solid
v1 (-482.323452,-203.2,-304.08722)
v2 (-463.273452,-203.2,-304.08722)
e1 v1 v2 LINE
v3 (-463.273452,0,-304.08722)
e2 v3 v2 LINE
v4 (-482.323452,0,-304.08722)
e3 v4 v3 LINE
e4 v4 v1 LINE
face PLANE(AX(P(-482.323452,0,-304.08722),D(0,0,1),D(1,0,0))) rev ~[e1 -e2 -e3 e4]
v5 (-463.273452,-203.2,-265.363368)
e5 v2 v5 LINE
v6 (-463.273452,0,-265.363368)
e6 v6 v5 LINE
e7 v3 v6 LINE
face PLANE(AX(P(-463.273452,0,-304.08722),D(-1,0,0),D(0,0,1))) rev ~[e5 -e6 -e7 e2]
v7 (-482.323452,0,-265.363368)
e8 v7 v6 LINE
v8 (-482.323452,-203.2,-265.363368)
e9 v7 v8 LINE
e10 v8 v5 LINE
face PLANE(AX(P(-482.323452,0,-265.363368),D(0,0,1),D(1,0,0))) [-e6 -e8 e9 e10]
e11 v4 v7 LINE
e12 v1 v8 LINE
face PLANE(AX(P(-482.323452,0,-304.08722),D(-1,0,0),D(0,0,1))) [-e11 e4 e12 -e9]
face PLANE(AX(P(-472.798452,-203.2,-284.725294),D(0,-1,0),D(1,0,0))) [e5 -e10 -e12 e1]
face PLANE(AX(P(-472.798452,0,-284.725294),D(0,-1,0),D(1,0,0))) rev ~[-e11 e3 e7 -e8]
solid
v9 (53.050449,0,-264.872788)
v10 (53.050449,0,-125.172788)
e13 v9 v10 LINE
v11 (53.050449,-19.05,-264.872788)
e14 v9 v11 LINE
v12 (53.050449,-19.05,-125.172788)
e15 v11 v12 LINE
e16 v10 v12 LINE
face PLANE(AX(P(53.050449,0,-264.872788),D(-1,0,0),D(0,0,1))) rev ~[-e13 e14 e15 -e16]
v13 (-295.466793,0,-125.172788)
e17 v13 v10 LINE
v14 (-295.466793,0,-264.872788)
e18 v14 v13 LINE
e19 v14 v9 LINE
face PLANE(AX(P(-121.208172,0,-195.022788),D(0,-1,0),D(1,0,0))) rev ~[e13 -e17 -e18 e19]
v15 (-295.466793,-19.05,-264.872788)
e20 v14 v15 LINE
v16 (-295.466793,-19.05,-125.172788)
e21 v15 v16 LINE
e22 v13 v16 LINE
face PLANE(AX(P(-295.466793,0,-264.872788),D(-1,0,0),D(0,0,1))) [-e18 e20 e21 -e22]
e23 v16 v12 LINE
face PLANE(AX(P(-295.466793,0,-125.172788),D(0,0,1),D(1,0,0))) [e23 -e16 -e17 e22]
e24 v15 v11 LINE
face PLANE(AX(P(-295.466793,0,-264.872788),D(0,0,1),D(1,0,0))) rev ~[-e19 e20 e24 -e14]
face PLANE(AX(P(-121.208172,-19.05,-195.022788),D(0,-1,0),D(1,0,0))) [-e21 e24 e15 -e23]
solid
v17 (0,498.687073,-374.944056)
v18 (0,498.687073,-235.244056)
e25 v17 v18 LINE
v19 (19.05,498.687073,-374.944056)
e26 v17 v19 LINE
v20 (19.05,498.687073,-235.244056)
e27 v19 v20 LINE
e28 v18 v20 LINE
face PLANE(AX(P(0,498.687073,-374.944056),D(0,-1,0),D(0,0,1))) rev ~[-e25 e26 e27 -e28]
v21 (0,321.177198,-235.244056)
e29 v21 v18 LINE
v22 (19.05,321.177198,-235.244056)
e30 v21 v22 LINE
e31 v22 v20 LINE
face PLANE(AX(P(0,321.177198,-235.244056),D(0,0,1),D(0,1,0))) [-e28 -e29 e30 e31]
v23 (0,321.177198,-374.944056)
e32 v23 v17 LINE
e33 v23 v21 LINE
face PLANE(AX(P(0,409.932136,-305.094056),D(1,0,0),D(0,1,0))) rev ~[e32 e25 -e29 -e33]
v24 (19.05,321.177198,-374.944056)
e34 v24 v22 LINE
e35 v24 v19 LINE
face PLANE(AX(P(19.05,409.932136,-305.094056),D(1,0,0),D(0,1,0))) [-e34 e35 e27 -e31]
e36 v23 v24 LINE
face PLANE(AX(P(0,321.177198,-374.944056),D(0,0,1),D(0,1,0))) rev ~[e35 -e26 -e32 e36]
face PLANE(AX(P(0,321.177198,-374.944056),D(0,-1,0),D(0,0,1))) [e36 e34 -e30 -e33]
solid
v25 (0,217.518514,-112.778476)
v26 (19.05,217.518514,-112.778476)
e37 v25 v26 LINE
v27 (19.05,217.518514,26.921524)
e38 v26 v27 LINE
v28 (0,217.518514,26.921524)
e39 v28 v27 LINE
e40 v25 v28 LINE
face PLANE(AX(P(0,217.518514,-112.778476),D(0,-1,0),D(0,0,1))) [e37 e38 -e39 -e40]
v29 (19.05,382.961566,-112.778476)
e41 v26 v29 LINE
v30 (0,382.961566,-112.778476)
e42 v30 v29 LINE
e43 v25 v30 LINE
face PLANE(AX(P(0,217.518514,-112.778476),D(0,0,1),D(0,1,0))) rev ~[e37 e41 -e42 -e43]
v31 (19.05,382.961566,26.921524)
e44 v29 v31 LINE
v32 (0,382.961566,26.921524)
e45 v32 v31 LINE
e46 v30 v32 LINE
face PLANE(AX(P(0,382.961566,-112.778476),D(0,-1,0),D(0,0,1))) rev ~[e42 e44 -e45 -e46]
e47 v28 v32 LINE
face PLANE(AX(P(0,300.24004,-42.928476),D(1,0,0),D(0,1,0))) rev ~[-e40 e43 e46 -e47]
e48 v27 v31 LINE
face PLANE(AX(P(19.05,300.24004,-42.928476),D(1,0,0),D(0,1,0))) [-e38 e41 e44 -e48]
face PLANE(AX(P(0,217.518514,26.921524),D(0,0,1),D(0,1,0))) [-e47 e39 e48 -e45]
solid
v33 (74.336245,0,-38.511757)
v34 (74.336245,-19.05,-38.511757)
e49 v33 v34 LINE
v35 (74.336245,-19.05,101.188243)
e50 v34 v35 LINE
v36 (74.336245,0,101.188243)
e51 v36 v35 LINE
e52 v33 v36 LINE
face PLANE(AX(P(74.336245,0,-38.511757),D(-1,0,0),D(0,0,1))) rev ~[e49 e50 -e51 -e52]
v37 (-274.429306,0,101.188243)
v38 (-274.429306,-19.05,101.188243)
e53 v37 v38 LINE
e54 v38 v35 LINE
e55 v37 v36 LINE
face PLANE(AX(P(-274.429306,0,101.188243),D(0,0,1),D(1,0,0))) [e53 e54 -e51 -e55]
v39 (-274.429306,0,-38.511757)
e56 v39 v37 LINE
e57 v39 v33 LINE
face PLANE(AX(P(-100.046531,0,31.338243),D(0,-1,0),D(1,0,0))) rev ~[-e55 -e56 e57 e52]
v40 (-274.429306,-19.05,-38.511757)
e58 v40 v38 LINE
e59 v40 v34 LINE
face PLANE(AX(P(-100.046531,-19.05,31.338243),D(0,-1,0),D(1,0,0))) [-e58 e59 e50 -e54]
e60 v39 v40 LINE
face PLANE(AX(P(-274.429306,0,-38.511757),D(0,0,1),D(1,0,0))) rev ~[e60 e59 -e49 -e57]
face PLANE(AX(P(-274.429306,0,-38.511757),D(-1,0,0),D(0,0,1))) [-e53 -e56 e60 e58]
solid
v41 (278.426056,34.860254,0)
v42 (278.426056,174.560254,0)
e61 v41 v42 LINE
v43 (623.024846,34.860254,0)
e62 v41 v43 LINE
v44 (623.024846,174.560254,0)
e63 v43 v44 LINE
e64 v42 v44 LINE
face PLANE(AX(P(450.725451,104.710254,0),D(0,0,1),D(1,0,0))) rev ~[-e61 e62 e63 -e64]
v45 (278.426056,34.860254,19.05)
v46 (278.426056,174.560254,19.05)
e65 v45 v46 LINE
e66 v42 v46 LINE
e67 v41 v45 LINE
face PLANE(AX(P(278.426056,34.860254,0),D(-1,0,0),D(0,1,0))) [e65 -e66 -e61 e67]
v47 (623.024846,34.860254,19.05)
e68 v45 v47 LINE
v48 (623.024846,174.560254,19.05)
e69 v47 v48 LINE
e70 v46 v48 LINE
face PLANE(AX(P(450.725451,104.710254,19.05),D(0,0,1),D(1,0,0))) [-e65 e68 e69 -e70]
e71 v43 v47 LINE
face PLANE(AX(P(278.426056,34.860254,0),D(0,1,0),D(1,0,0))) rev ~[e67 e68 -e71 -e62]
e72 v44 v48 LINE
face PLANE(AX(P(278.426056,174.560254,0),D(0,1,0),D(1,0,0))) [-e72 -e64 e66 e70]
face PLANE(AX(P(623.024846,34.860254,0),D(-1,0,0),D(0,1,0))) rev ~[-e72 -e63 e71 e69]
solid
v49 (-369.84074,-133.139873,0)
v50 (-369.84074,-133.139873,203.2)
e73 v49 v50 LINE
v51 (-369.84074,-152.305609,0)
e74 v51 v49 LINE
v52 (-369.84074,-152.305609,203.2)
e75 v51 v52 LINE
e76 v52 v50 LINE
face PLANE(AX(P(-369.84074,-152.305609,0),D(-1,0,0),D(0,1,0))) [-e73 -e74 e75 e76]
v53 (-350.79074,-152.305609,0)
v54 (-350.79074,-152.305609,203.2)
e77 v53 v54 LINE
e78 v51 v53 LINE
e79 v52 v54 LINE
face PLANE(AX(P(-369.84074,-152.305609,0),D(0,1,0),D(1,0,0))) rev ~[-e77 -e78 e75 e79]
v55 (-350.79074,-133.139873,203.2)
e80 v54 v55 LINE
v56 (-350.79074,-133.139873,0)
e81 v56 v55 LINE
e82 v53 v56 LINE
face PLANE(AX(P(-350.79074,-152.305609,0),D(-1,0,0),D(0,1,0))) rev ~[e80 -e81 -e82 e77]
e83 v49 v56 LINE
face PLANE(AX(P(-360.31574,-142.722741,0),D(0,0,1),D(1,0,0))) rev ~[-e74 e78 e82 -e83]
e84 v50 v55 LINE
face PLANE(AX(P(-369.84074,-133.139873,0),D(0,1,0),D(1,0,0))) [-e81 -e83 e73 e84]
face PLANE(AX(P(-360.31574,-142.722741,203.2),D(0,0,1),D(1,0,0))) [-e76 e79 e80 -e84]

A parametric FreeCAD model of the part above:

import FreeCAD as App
import Part
import Sketcher
Q = App.Units.Quantity

doc = App.newDocument("Part")
body = doc.addObject("PartDesign::Body", "Body")

# Sketch on XZ plane
sketch1 = body.newObject("Sketcher::SketchObject", "Sketch")
sketch1.AttachmentSupport = (doc.getObject("XZ_Plane"), [""])
sketch1.MapMode = "FlatFace"
sketch1.addGeometry([
    Part.LineSegment(App.Vector(-274, 101, 0), App.Vector(-274, -39, 0)),
    Part.LineSegment(App.Vector(-274, -39, 0), App.Vector(74, -39, 0)),
    Part.LineSegment(App.Vector(74, -39, 0), App.Vector(74, 101, 0)),
    Part.LineSegment(App.Vector(74, 101, 0), App.Vector(-274, 101, 0)),
], False)
sketch1.addConstraint([
    Sketcher.Constraint("Coincident", 0, 2, 1, 1),
    Sketcher.Constraint("Coincident", 1, 2, 2, 1),
    Sketcher.Constraint("Coincident", 2, 2, 3, 1),
    Sketcher.Constraint("Coincident", 3, 2, 0, 1),
    Sketcher.Constraint("Vertical", 0),
    Sketcher.Constraint("Horizontal", 1),
    Sketcher.Constraint("Vertical", 2),
    Sketcher.Constraint("Horizontal", 3),
    Sketcher.Constraint("DistanceY", 0, 2, 0, 1, Q("5.5 in")),
    Sketcher.Constraint("DistanceX", 1, 1, 1, 2, 348.765551),
    Sketcher.Constraint("DistanceX", 0, 2, -1, 1, 274.429306),
    Sketcher.Constraint("DistanceY", 0, 2, -1, 1, 38.511757),
])
pad1 = body.newObject("PartDesign::Pad", "Pad")
pad1.Profile = sketch1
pad1.Length = Q("0.75 in")
body2 = doc.addObject("PartDesign::Body", "Body001")

# Sketch on XZ plane
sketch2 = body2.newObject("Sketcher::SketchObject", "Sketch001")
sketch2.AttachmentSupport = (doc.getObject("XZ_Plane001"), [""])
sketch2.MapMode = "FlatFace"
sketch2.addGeometry([
    Part.LineSegment(App.Vector(-295, -125, 0), App.Vector(-295, -265, 0)),
    Part.LineSegment(App.Vector(-295, -265, 0), App.Vector(53, -265, 0)),
    Part.LineSegment(App.Vector(53, -265, 0), App.Vector(53, -125, 0)),
    Part.LineSegment(App.Vector(53, -125, 0), App.Vector(-295, -125, 0)),
], False)
sketch2.addConstraint([
    Sketcher.Constraint("Coincident", 0, 2, 1, 1),
    Sketcher.Constraint("Coincident", 1, 2, 2, 1),
    Sketcher.Constraint("Coincident", 2, 2, 3, 1),
    Sketcher.Constraint("Coincident", 3, 2, 0, 1),
    Sketcher.Constraint("Vertical", 0),
    Sketcher.Constraint("Horizontal", 1),
    Sketcher.Constraint("Vertical", 2),
    Sketcher.Constraint("Horizontal", 3),
    Sketcher.Constraint("DistanceY", 0, 2, 0, 1, Q("5.5 in")),
    Sketcher.Constraint("DistanceX", 1, 1, 1, 2, 348.517242),
    Sketcher.Constraint("DistanceY", 0, 2, -1, 1, 264.872788),
    Sketcher.Constraint("DistanceX", -1, 1, 1, 2, 53.050449),
])
pad2 = body2.newObject("PartDesign::Pad", "Pad001")
pad2.Profile = sketch2
pad2.Length = Q("0.75 in")
body3 = doc.addObject("PartDesign::Body", "Body002")

# Sketch on YZ plane
sketch3 = body3.newObject("Sketcher::SketchObject", "Sketch002")
sketch3.AttachmentSupport = (doc.getObject("YZ_Plane002"), [""])
sketch3.MapMode = "FlatFace"
sketch3.addGeometry([
    Part.LineSegment(App.Vector(218, 27, 0), App.Vector(218, -113, 0)),
    Part.LineSegment(App.Vector(218, -113, 0), App.Vector(383, -113, 0)),
    Part.LineSegment(App.Vector(383, -113, 0), App.Vector(383, 27, 0)),
    Part.LineSegment(App.Vector(383, 27, 0), App.Vector(218, 27, 0)),
], False)
sketch3.addConstraint([
    Sketcher.Constraint("Coincident", 0, 2, 1, 1),
    Sketcher.Constraint("Coincident", 1, 2, 2, 1),
    Sketcher.Constraint("Coincident", 2, 2, 3, 1),
    Sketcher.Constraint("Coincident", 3, 2, 0, 1),
    Sketcher.Constraint("Vertical", 0),
    Sketcher.Constraint("Horizontal", 1),
    Sketcher.Constraint("Vertical", 2),
    Sketcher.Constraint("Horizontal", 3),
    Sketcher.Constraint("DistanceY", 0, 2, 0, 1, Q("5.5 in")),
    Sketcher.Constraint("DistanceX", 1, 1, 1, 2, 165.443052),
    Sketcher.Constraint("DistanceX", -1, 1, 0, 2, 217.518514),
    Sketcher.Constraint("DistanceY", 0, 2, -1, 1, 112.778476),
])
pad3 = body3.newObject("PartDesign::Pad", "Pad002")
pad3.Profile = sketch3
pad3.Length = Q("0.75 in")
body4 = doc.addObject("PartDesign::Body", "Body003")

# Sketch on YZ plane
sketch4 = body4.newObject("Sketcher::SketchObject", "Sketch003")
sketch4.AttachmentSupport = (doc.getObject("YZ_Plane003"), [""])
sketch4.MapMode = "FlatFace"
sketch4.addGeometry([
    Part.LineSegment(App.Vector(321, -235, 0), App.Vector(321, -375, 0)),
    Part.LineSegment(App.Vector(321, -375, 0), App.Vector(499, -375, 0)),
    Part.LineSegment(App.Vector(499, -375, 0), App.Vector(499, -235, 0)),
    Part.LineSegment(App.Vector(499, -235, 0), App.Vector(321, -235, 0)),
], False)
sketch4.addConstraint([
    Sketcher.Constraint("Coincident", 0, 2, 1, 1),
    Sketcher.Constraint("Coincident", 1, 2, 2, 1),
    Sketcher.Constraint("Coincident", 2, 2, 3, 1),
    Sketcher.Constraint("Coincident", 3, 2, 0, 1),
    Sketcher.Constraint("Vertical", 0),
    Sketcher.Constraint("Horizontal", 1),
    Sketcher.Constraint("Vertical", 2),
    Sketcher.Constraint("Horizontal", 3),
    Sketcher.Constraint("DistanceY", 0, 2, 0, 1, Q("5.5 in")),
    Sketcher.Constraint("DistanceX", -1, 1, 0, 2, 321.177198),
    Sketcher.Constraint("DistanceX", 1, 1, 1, 2, 177.509875),
    Sketcher.Constraint("DistanceY", 0, 2, -1, 1, 374.944056),
])
pad4 = body4.newObject("PartDesign::Pad", "Pad003")
pad4.Profile = sketch4
pad4.Length = Q("0.75 in")
body5 = doc.addObject("PartDesign::Body", "Body004")

# Sketch on XY plane
sketch5 = body5.newObject("Sketcher::SketchObject", "Sketch004")
sketch5.AttachmentSupport = (doc.getObject("XY_Plane004"), [""])
sketch5.MapMode = "FlatFace"
sketch5.addGeometry([
    Part.LineSegment(App.Vector(-370, -133, 0), App.Vector(-370, -152, 0)),
    Part.LineSegment(App.Vector(-370, -152, 0), App.Vector(-351, -152, 0)),
    Part.LineSegment(App.Vector(-351, -152, 0), App.Vector(-351, -133, 0)),
    Part.LineSegment(App.Vector(-351, -133, 0), App.Vector(-370, -133, 0)),
], False)
sketch5.addConstraint([
    Sketcher.Constraint("Coincident", 0, 2, 1, 1),
    Sketcher.Constraint("Coincident", 1, 2, 2, 1),
    Sketcher.Constraint("Coincident", 2, 2, 3, 1),
    Sketcher.Constraint("Coincident", 3, 2, 0, 1),
    Sketcher.Constraint("Vertical", 0),
    Sketcher.Constraint("Horizontal", 1),
    Sketcher.Constraint("Vertical", 2),
    Sketcher.Constraint("Horizontal", 3),
    Sketcher.Constraint("DistanceX", 1, 1, 1, 2, Q("0.75 in")),
    Sketcher.Constraint("DistanceY", 0, 2, 0, 1, 19.165736),
    Sketcher.Constraint("DistanceX", 0, 2, -1, 1, 369.84074),
    Sketcher.Constraint("DistanceY", 0, 2, -1, 1, 152.305609),
])
pad5 = body5.newObject("PartDesign::Pad", "Pad004")
pad5.Profile = sketch5
pad5.Length = Q("8 in")
body6 = doc.addObject("PartDesign::Body", "Body005")

# Sketch on XZ plane
sketch6 = body6.newObject("Sketcher::SketchObject", "Sketch005")
sketch6.AttachmentSupport = (doc.getObject("XZ_Plane005"), [""])
sketch6.MapMode = "FlatFace"
sketch6.addGeometry([
    Part.LineSegment(App.Vector(-482, -265, 0), App.Vector(-482, -304, 0)),
    Part.LineSegment(App.Vector(-482, -304, 0), App.Vector(-463, -304, 0)),
    Part.LineSegment(App.Vector(-463, -304, 0), App.Vector(-463, -265, 0)),
    Part.LineSegment(App.Vector(-463, -265, 0), App.Vector(-482, -265, 0)),
], False)
sketch6.addConstraint([
    Sketcher.Constraint("Coincident", 0, 2, 1, 1),
    Sketcher.Constraint("Coincident", 1, 2, 2, 1),
    Sketcher.Constraint("Coincident", 2, 2, 3, 1),
    Sketcher.Constraint("Coincident", 3, 2, 0, 1),
    Sketcher.Constraint("Vertical", 0),
    Sketcher.Constraint("Horizontal", 1),
    Sketcher.Constraint("Vertical", 2),
    Sketcher.Constraint("Horizontal", 3),
    Sketcher.Constraint("DistanceX", 1, 1, 1, 2, Q("0.75 in")),
    Sketcher.Constraint("DistanceY", 0, 2, 0, 1, 38.723851),
    Sketcher.Constraint("DistanceX", 0, 2, -1, 1, 482.323452),
    Sketcher.Constraint("DistanceY", 0, 2, -1, 1, 304.08722),
])
pad6 = body6.newObject("PartDesign::Pad", "Pad005")
pad6.Profile = sketch6
pad6.Length = Q("8 in")
body7 = doc.addObject("PartDesign::Body", "Body006")

# Sketch on XY plane
sketch7 = body7.newObject("Sketcher::SketchObject", "Sketch006")
sketch7.AttachmentSupport = (doc.getObject("XY_Plane006"), [""])
sketch7.MapMode = "FlatFace"
sketch7.addGeometry([
    Part.LineSegment(App.Vector(278, 175, 0), App.Vector(278, 35, 0)),
    Part.LineSegment(App.Vector(278, 35, 0), App.Vector(623, 35, 0)),
    Part.LineSegment(App.Vector(623, 35, 0), App.Vector(623, 175, 0)),
    Part.LineSegment(App.Vector(623, 175, 0), App.Vector(278, 175, 0)),
], False)
sketch7.addConstraint([
    Sketcher.Constraint("Coincident", 0, 2, 1, 1),
    Sketcher.Constraint("Coincident", 1, 2, 2, 1),
    Sketcher.Constraint("Coincident", 2, 2, 3, 1),
    Sketcher.Constraint("Coincident", 3, 2, 0, 1),
    Sketcher.Constraint("Vertical", 0),
    Sketcher.Constraint("Horizontal", 1),
    Sketcher.Constraint("Vertical", 2),
    Sketcher.Constraint("Horizontal", 3),
    Sketcher.Constraint("DistanceY", 0, 2, 0, 1, Q("5.5 in")),
    Sketcher.Constraint("DistanceX", 1, 1, 1, 2, 344.59879),
    Sketcher.Constraint("DistanceX", -1, 1, 0, 2, 278.426056),
    Sketcher.Constraint("DistanceY", -1, 1, 0, 2, 34.860254),
])
pad7 = body7.newObject("PartDesign::Pad", "Pad006")
pad7.Profile = sketch7
pad7.Length = Q("0.75 in")

doc.recompute()
